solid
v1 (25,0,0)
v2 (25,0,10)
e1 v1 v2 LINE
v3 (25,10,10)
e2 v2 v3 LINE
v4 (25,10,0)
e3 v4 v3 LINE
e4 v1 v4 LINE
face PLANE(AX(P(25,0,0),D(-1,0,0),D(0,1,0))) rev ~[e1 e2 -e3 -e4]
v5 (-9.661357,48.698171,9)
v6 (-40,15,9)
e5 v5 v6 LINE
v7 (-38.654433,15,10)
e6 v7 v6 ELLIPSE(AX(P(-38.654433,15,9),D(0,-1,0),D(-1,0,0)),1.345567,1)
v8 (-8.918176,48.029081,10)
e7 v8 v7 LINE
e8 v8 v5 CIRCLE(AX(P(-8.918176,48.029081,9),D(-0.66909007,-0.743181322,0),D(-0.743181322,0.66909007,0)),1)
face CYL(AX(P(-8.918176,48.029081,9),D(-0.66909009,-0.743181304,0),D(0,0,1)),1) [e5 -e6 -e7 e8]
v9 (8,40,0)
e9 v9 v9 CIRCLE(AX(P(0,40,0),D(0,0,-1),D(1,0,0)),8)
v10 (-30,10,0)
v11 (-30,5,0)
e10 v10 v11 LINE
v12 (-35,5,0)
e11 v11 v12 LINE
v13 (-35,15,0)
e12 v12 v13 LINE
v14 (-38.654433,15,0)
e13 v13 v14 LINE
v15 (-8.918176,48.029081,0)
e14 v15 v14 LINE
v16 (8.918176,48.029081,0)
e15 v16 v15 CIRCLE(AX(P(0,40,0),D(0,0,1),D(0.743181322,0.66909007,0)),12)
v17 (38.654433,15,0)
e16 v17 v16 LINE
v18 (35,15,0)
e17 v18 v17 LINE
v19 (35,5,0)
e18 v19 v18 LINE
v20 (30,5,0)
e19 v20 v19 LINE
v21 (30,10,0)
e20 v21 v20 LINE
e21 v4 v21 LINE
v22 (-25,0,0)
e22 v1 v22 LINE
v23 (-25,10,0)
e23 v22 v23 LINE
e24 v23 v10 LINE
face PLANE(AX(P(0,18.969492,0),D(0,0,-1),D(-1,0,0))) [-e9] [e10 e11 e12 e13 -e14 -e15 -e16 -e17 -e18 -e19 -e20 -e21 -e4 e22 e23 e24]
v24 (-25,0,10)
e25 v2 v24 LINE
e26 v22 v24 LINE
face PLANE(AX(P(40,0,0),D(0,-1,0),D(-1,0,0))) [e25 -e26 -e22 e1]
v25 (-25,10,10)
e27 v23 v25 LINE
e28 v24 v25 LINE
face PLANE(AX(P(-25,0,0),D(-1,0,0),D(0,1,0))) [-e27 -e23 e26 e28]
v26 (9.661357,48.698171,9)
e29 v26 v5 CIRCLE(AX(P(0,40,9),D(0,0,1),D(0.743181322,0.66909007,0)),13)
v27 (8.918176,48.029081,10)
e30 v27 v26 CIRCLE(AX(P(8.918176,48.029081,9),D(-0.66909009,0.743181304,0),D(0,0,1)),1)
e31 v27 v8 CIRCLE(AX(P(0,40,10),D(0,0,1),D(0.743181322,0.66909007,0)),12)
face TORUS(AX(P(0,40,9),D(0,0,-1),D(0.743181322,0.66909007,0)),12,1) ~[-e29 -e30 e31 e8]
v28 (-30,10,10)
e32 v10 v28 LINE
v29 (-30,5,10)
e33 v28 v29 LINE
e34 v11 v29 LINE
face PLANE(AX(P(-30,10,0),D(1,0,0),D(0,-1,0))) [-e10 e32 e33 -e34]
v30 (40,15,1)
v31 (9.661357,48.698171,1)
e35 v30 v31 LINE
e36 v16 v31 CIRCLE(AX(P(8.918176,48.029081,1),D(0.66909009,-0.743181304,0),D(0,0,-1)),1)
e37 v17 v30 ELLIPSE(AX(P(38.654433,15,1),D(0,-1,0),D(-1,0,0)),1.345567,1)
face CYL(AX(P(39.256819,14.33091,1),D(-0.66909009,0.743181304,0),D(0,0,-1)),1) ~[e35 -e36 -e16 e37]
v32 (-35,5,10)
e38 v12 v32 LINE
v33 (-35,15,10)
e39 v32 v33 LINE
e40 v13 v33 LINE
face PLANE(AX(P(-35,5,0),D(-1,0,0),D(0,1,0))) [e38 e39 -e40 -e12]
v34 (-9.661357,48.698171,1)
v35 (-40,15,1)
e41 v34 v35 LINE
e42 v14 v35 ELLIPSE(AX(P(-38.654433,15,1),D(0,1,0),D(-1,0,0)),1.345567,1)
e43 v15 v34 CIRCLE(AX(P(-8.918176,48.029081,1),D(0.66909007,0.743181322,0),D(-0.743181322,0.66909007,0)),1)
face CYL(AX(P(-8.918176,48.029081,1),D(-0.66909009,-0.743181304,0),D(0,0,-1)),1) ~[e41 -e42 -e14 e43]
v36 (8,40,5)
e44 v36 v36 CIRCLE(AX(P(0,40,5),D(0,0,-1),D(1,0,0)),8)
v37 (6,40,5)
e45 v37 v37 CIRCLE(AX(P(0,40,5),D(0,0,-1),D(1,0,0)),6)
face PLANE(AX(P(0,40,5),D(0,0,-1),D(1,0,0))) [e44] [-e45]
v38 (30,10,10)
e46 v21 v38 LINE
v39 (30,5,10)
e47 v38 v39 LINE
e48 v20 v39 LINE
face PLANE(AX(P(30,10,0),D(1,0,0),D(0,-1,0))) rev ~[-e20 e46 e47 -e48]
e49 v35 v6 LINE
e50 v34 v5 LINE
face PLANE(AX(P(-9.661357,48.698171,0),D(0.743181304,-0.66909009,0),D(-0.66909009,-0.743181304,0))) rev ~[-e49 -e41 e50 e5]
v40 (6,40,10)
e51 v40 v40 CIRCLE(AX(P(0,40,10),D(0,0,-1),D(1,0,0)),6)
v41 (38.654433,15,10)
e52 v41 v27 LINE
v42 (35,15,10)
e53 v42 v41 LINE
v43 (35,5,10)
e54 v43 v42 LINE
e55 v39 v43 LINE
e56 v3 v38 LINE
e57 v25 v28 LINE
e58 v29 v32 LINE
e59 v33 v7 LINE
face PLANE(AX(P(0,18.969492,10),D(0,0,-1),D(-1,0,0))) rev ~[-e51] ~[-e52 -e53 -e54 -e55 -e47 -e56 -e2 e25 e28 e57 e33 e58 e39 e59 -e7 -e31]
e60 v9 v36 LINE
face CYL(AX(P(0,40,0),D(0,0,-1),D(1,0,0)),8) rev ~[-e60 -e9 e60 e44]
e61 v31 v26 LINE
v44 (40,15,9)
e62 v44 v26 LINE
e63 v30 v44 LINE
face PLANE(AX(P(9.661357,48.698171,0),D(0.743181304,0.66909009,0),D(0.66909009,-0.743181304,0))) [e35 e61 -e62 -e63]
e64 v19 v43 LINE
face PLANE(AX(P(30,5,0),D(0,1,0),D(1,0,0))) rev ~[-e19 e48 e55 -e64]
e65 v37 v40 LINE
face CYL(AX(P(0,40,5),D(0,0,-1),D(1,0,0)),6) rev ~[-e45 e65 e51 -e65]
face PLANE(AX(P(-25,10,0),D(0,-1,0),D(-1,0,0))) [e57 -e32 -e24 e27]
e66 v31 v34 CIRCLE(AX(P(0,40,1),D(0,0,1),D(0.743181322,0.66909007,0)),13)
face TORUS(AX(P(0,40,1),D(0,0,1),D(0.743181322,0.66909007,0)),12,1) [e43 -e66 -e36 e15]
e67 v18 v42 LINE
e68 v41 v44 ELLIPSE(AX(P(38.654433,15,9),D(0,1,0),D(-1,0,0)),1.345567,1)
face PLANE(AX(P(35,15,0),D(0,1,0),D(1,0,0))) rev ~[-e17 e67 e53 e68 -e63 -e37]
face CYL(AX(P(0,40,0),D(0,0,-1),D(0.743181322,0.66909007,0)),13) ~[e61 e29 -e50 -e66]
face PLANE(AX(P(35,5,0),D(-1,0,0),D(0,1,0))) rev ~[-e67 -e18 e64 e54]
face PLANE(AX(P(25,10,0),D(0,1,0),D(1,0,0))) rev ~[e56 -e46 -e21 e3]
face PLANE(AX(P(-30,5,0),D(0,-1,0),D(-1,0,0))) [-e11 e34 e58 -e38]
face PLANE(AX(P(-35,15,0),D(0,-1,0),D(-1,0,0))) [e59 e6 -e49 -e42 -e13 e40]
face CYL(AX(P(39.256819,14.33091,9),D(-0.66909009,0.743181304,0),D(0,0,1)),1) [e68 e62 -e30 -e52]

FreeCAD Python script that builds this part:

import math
import FreeCAD as App
import Part
import Sketcher
Q = App.Units.Quantity


def edges_at(feature, points):
    """Names of the edges that pass closest to the given points."""
    edges = feature.Shape.Edges
    near = lambda p: min(range(len(edges)), key=lambda i: edges[i].distToShape(Part.Vertex(*p))[0])
    return sorted({f"Edge{near(p) + 1}" for p in points})

doc = App.newDocument("Part")
body = doc.addObject("PartDesign::Body", "Body")

sketch1 = body.newObject("Sketcher::SketchObject", "Sketch")
sketch1.AttachmentSupport = (doc.getObject("XY_Plane"), [""])
sketch1.MapMode = "FlatFace"
sketch1.addGeometry([
    Part.LineSegment(App.Vector(-40, 0, 0), App.Vector(40, 0, 0)),
    Part.LineSegment(App.Vector(40, 0, 0), App.Vector(40, 15, 0)),
    Part.LineSegment(App.Vector(40, 15, 0), App.Vector(10, 49, 0)),
    Part.ArcOfCircle(Part.Circle(App.Vector(0, 40, 0), App.Vector(0, 0, 1), 13), math.radians(42), math.radians(138)),
    Part.LineSegment(App.Vector(-10, 49, 0), App.Vector(-40, 15, 0)),
    Part.LineSegment(App.Vector(-40, 15, 0), App.Vector(-40, 0, 0)),
], False)
sketch1.addConstraint([
    Sketcher.Constraint("Coincident", 0, 2, 1, 1),
    Sketcher.Constraint("Coincident", 1, 2, 2, 1),
    Sketcher.Constraint("Tangent", 2, 2, 3, 1),
    Sketcher.Constraint("Tangent", 3, 2, 4, 1),
    Sketcher.Constraint("Coincident", 4, 2, 5, 1),
    Sketcher.Constraint("Coincident", 5, 2, 0, 1),
    Sketcher.Constraint("Horizontal", 0),
    Sketcher.Constraint("Vertical", 1),
    Sketcher.Constraint("Vertical", 5),
    Sketcher.Constraint("Symmetric", 0, 2, 5, 2, -1, 1),
    Sketcher.Constraint("Symmetric", 2, 2, 3, 2, -2),
    Sketcher.Constraint("Radius", 3, Q("13 mm")),
    Sketcher.Constraint("DistanceX", 0, 1, 0, 2, Q("80 mm")),
    Sketcher.Constraint("DistanceY", 1, 1, 1, 2, Q("15 mm")),
    Sketcher.Constraint("DistanceY", -1, 1, 3, 3, Q("40 mm")),
])
pad1 = body.newObject("PartDesign::Pad", "Pad")
pad1.Profile = sketch1
pad1.Length = 10

sketch2 = body.newObject("Sketcher::SketchObject", "Sketch001")
sketch2.AttachmentSupport = (doc.getObject("XY_Plane"), [""])
sketch2.MapMode = "FlatFace"
sketch2.addGeometry(Part.Circle(App.Vector(0, 40, 0), App.Vector(0, 0, 1), 8), False)
sketch2.addConstraint([
    Sketcher.Constraint("PointOnObject", 0, 3, -2),
    Sketcher.Constraint("Diameter", 0, Q("16 mm")),
    Sketcher.Constraint("DistanceY", -1, 1, 0, 3, Q("40 mm")),
])
pocket1 = body.newObject("PartDesign::Pocket", "Pocket")
pocket1.Profile = sketch2
pocket1.Length = 5
pocket1.Reversed = True

sketch3 = body.newObject("Sketcher::SketchObject", "Sketch002")
sketch3.AttachmentSupport = (doc.getObject("XY_Plane"), [""])
sketch3.MapMode = "FlatFace"
sketch3.AttachmentOffset = App.Placement(App.Vector(0, 0, 5), App.Rotation())
sketch3.addGeometry(Part.Circle(App.Vector(0, 40, 0), App.Vector(0, 0, 1), 6), False)
sketch3.addConstraint([
    Sketcher.Constraint("PointOnObject", 0, 3, -2),
    Sketcher.Constraint("Diameter", 0, Q("12 mm")),
    Sketcher.Constraint("DistanceY", -1, 1, 0, 3, Q("40 mm")),
])
pocket2 = body.newObject("PartDesign::Pocket", "Pocket001")
pocket2.Profile = sketch3
pocket2.Length = 5
pocket2.Reversed = True

sketch4 = body.newObject("Sketcher::SketchObject", "Sketch003")
sketch4.AttachmentSupport = (doc.getObject("XY_Plane"), [""])
sketch4.MapMode = "FlatFace"
sketch4.addGeometry([
    Part.LineSegment(App.Vector(-40, 0, 0), App.Vector(-40, 15, 0)),
    Part.LineSegment(App.Vector(-40, 15, 0), App.Vector(-35, 15, 0)),
    Part.LineSegment(App.Vector(-35, 15, 0), App.Vector(-35, 5, 0)),
    Part.LineSegment(App.Vector(-35, 5, 0), App.Vector(-30, 5, 0)),
    Part.LineSegment(App.Vector(-30, 5, 0), App.Vector(-30, 10, 0)),
    Part.LineSegment(App.Vector(-30, 10, 0), App.Vector(-25, 10, 0)),
    Part.LineSegment(App.Vector(-25, 10, 0), App.Vector(-25, 0, 0)),
    Part.LineSegment(App.Vector(-25, 0, 0), App.Vector(-40, 0, 0)),
    Part.LineSegment(App.Vector(40, 15, 0), App.Vector(40, 0, 0)),
    Part.LineSegment(App.Vector(40, 0, 0), App.Vector(25, 0, 0)),
    Part.LineSegment(App.Vector(25, 0, 0), App.Vector(25, 10, 0)),
    Part.LineSegment(App.Vector(25, 10, 0), App.Vector(30, 10, 0)),
    Part.LineSegment(App.Vector(30, 10, 0), App.Vector(30, 5, 0)),
    Part.LineSegment(App.Vector(30, 5, 0), App.Vector(35, 5, 0)),
    Part.LineSegment(App.Vector(35, 5, 0), App.Vector(35, 15, 0)),
    Part.LineSegment(App.Vector(35, 15, 0), App.Vector(40, 15, 0)),
], False)
sketch4.addConstraint([
    Sketcher.Constraint("Coincident", 0, 2, 1, 1),
    Sketcher.Constraint("Coincident", 1, 2, 2, 1),
    Sketcher.Constraint("Coincident", 2, 2, 3, 1),
    Sketcher.Constraint("Coincident", 3, 2, 4, 1),
    Sketcher.Constraint("Coincident", 4, 2, 5, 1),
    Sketcher.Constraint("Coincident", 5, 2, 6, 1),
    Sketcher.Constraint("Coincident", 6, 2, 7, 1),
    Sketcher.Constraint("Coincident", 7, 2, 0, 1),
    Sketcher.Constraint("Coincident", 8, 2, 9, 1),
    Sketcher.Constraint("Coincident", 9, 2, 10, 1),
    Sketcher.Constraint("Coincident", 10, 2, 11, 1),
    Sketcher.Constraint("Coincident", 11, 2, 12, 1),
    Sketcher.Constraint("Coincident", 12, 2, 13, 1),
    Sketcher.Constraint("Coincident", 13, 2, 14, 1),
    Sketcher.Constraint("Coincident", 14, 2, 15, 1),
    Sketcher.Constraint("Coincident", 15, 2, 8, 1),
    Sketcher.Constraint("Vertical", 0),
    Sketcher.Constraint("Horizontal", 1),
    Sketcher.Constraint("Vertical", 2),
    Sketcher.Constraint("Horizontal", 3),
    Sketcher.Constraint("Vertical", 4),
    Sketcher.Constraint("Horizontal", 5),
    Sketcher.Constraint("Vertical", 6),
    Sketcher.Constraint("Horizontal", 7),
    Sketcher.Constraint("Vertical", 8),
    Sketcher.Constraint("Horizontal", 9),
    Sketcher.Constraint("Vertical", 10),
    Sketcher.Constraint("Horizontal", 11),
    Sketcher.Constraint("Vertical", 12),
    Sketcher.Constraint("Horizontal", 13),
    Sketcher.Constraint("Vertical", 14),
    Sketcher.Constraint("Horizontal", 15),
    Sketcher.Constraint("Symmetric", 7, 2, 8, 2, -1, 1),
    Sketcher.Constraint("Symmetric", 6, 2, 9, 2, -2),
    Sketcher.Constraint("Symmetric", 4, 2, 11, 2, -2),
    Sketcher.Constraint("Symmetric", 2, 2, 13, 2, -2),
    Sketcher.Constraint("Horizontal", 1, 2, 14, 2),
    Sketcher.Constraint("Equal", 1, 3),
    Sketcher.Constraint("Equal", 3, 5),
    Sketcher.Constraint("Equal", 9, 0),
    Sketcher.Constraint("Equal", 15, 4),
    Sketcher.Constraint("Equal", 2, 6),
    Sketcher.Constraint("DistanceX", 1, 1, 1, 2, Q("5 mm")),
    Sketcher.Constraint("DistanceX", 0, 2, -1, 1, Q("40 mm")),
])
pocket3 = body.newObject("PartDesign::Pocket", "Pocket002")
pocket3.Profile = sketch4
pocket3.Length = 10
pocket3.Reversed = True
doc.recompute()

fillet = body.newObject("PartDesign::Fillet", "Fillet")
fillet.Base = (pocket3, edges_at(pocket3, [(-24.831, 31.849, 10), (-24.831, 31.849, 0)]))
fillet.Radius = 1

doc.recompute()
